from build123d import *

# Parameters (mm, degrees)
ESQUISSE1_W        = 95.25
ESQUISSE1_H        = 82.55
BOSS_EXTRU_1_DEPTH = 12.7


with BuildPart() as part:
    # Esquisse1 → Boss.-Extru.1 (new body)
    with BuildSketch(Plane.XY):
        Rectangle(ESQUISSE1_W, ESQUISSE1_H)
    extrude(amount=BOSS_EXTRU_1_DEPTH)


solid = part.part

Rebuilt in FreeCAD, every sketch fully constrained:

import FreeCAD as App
import Part
import Sketcher
from FreeCAD import Vector
Q = App.Units.Quantity

doc = App.newDocument("Part")
body = doc.addObject("PartDesign::Body", "Body")

# Sketch on XY plane
sketch1 = body.newObject("Sketcher::SketchObject", "Sketch")
sketch1.AttachmentSupport = (doc.getObject("XY_Plane"), [""])
sketch1.MapMode = "FlatFace"
sketch1.addGeometry(Part.LineSegment(Vector(-48, 41, 0), Vector(-48, -41, 0)), False)
sketch1.addGeometry(Part.LineSegment(Vector(-48, -41, 0), Vector(48, -41, 0)), False)
sketch1.addGeometry(Part.LineSegment(Vector(48, -41, 0), Vector(48, 41, 0)), False)
sketch1.addGeometry(Part.LineSegment(Vector(48, 41, 0), Vector(-48, 41, 0)), False)
sketch1.addConstraint(Sketcher.Constraint("Coincident", 0, 2, 1, 1))
sketch1.addConstraint(Sketcher.Constraint("Coincident", 1, 2, 2, 1))
sketch1.addConstraint(Sketcher.Constraint("Coincident", 2, 2, 3, 1))
sketch1.addConstraint(Sketcher.Constraint("Coincident", 3, 2, 0, 1))
sketch1.addConstraint(Sketcher.Constraint("Vertical", 0))
sketch1.addConstraint(Sketcher.Constraint("Horizontal", 1))
sketch1.addConstraint(Sketcher.Constraint("Vertical", 2))
sketch1.addConstraint(Sketcher.Constraint("Horizontal", 3))
sketch1.addConstraint(Sketcher.Constraint("Symmetric", 0, 2, 2, 2, -1, 1))
sketch1.addConstraint(Sketcher.Constraint("DistanceX", 1, 1, 1, 2, Q("3.75 in")))
sketch1.addConstraint(Sketcher.Constraint("DistanceY", 0, 2, 0, 1, Q("3.25 in")))
pad1 = body.newObject("PartDesign::Pad", "Pad")
pad1.Profile = sketch1
pad1.Length = Q("0.5 in")

doc.recompute()
